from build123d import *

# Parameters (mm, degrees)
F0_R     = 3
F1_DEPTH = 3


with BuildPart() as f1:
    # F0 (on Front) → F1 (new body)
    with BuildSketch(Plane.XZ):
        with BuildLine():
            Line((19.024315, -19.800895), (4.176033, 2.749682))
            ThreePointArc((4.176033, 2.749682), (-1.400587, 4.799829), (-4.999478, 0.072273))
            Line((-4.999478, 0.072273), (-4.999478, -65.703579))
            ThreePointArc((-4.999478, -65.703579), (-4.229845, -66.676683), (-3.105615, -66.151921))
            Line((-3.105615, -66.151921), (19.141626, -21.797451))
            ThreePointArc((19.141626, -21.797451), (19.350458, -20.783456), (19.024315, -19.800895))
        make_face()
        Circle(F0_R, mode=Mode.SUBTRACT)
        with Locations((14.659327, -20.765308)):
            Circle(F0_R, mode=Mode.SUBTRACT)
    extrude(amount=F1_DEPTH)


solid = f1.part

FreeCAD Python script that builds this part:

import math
import FreeCAD as App
import Part
import Sketcher

V = App.Vector
Q = App.Units.Quantity

doc = App.newDocument("Part")
params = doc.addObject("Spreadsheet::Sheet", "Params")
for row, (alias, value) in enumerate([
    ("sketch1_diameter", "6 mm"),
    ("sketch1_radius", "5 mm"),
    ("sketch1_radius2", "1 mm"),
    ("sketch1_radius3", "2.000001 mm"),
    ("sketch1_length", "27 mm"),
    ("pad1_length", "3 mm"),
], start=1):
    params.set(f"A{row}", alias)
    params.set(f"B{row}", "=" + value)
    params.setAlias(f"B{row}", alias)

body = doc.addObject("PartDesign::Body", "Body")

# Sketch on XZ plane
sketch1 = body.newObject("Sketcher::SketchObject", "Sketch")
sketch1.AttachmentSupport = (doc.getObject("XZ_Plane"), [""])
sketch1.MapMode = "FlatFace"
sketch1.addGeometry([
    Part.LineSegment(V(19, -19.8, 0), V(4.2, 2.7, 0)),  # 0
    Part.ArcOfCircle(Part.Circle(V(0, 0, 0), V(0, 0, 1), 5), math.radians(33), math.radians(179)),  # 1
    Part.LineSegment(V(-5, 0.1, 0), V(-5, -65.7, 0)),  # 2
    Part.ArcOfCircle(Part.Circle(V(-4, -65.7, 0), V(0, 0, 1), 1), math.radians(-180), math.radians(-27)),  # 3
    Part.LineSegment(V(-3.1, -66.2, 0), V(19.1, -21.8, 0)),  # 4
    Part.ArcOfCircle(Part.Circle(V(17.4, -20.9, 0), V(0, 0, 1), 2), math.radians(-27), math.radians(33)),  # 5
    Part.Circle(V(14.7, -20.8, 0), V(0, 0, 1), 3),  # 6
    Part.Circle(V(0, 0, 0), V(0, 0, 1), 3),  # 7
], False)
sketch1.addConstraint([
    Sketcher.Constraint("Tangent", 0, 2, 1, 1),
    Sketcher.Constraint("Coincident", 1, 2, 2, 1),
    Sketcher.Constraint("Tangent", 2, 2, 3, 1),
    Sketcher.Constraint("Tangent", 3, 2, 4, 1),
    Sketcher.Constraint("Tangent", 4, 2, 5, 1),
    Sketcher.Constraint("Tangent", 5, 2, 0, 1),
    Sketcher.Constraint("Vertical", 2),
    Sketcher.Constraint("Coincident", 1, 3, -1, 1),
    Sketcher.Constraint("Coincident", 7, 3, -1, 1),
    Sketcher.Constraint("Equal", 6, 7),
    Sketcher.Constraint("Diameter", 6, Q("6 mm")),
    Sketcher.Constraint("Radius", 1, Q("5 mm")),
    Sketcher.Constraint("Radius", 3, Q("1 mm")),
    Sketcher.Constraint("Radius", 5, Q("2.000001 mm")),
    Sketcher.Constraint("Distance", 0, Q("27 mm")),
    Sketcher.Constraint("DistanceY", 2, 2, 2, 1, Q("65.775852 mm")),
    Sketcher.Constraint("DistanceX", -1, 1, 5, 3, Q("17.3539 mm")),
    Sketcher.Constraint("DistanceX", 6, 3, 4, 2, Q("4.482299 mm")),
    Sketcher.Constraint("DistanceY", 3, 3, -1, 1, Q("65.703579 mm")),
    Sketcher.Constraint("DistanceY", 6, 3, -1, 1, Q("20.765308 mm")),
])
sketch1.setExpression("Constraints[10]", "Params.sketch1_diameter")
sketch1.setExpression("Constraints[11]", "Params.sketch1_radius")
sketch1.setExpression("Constraints[12]", "Params.sketch1_radius2")
sketch1.setExpression("Constraints[13]", "Params.sketch1_radius3")
sketch1.setExpression("Constraints[14]", "Params.sketch1_length")
pad1 = body.newObject("PartDesign::Pad", "Pad")
pad1.Profile = sketch1
pad1.setExpression("Length", "Params.pad1_length")

doc.recompute()
